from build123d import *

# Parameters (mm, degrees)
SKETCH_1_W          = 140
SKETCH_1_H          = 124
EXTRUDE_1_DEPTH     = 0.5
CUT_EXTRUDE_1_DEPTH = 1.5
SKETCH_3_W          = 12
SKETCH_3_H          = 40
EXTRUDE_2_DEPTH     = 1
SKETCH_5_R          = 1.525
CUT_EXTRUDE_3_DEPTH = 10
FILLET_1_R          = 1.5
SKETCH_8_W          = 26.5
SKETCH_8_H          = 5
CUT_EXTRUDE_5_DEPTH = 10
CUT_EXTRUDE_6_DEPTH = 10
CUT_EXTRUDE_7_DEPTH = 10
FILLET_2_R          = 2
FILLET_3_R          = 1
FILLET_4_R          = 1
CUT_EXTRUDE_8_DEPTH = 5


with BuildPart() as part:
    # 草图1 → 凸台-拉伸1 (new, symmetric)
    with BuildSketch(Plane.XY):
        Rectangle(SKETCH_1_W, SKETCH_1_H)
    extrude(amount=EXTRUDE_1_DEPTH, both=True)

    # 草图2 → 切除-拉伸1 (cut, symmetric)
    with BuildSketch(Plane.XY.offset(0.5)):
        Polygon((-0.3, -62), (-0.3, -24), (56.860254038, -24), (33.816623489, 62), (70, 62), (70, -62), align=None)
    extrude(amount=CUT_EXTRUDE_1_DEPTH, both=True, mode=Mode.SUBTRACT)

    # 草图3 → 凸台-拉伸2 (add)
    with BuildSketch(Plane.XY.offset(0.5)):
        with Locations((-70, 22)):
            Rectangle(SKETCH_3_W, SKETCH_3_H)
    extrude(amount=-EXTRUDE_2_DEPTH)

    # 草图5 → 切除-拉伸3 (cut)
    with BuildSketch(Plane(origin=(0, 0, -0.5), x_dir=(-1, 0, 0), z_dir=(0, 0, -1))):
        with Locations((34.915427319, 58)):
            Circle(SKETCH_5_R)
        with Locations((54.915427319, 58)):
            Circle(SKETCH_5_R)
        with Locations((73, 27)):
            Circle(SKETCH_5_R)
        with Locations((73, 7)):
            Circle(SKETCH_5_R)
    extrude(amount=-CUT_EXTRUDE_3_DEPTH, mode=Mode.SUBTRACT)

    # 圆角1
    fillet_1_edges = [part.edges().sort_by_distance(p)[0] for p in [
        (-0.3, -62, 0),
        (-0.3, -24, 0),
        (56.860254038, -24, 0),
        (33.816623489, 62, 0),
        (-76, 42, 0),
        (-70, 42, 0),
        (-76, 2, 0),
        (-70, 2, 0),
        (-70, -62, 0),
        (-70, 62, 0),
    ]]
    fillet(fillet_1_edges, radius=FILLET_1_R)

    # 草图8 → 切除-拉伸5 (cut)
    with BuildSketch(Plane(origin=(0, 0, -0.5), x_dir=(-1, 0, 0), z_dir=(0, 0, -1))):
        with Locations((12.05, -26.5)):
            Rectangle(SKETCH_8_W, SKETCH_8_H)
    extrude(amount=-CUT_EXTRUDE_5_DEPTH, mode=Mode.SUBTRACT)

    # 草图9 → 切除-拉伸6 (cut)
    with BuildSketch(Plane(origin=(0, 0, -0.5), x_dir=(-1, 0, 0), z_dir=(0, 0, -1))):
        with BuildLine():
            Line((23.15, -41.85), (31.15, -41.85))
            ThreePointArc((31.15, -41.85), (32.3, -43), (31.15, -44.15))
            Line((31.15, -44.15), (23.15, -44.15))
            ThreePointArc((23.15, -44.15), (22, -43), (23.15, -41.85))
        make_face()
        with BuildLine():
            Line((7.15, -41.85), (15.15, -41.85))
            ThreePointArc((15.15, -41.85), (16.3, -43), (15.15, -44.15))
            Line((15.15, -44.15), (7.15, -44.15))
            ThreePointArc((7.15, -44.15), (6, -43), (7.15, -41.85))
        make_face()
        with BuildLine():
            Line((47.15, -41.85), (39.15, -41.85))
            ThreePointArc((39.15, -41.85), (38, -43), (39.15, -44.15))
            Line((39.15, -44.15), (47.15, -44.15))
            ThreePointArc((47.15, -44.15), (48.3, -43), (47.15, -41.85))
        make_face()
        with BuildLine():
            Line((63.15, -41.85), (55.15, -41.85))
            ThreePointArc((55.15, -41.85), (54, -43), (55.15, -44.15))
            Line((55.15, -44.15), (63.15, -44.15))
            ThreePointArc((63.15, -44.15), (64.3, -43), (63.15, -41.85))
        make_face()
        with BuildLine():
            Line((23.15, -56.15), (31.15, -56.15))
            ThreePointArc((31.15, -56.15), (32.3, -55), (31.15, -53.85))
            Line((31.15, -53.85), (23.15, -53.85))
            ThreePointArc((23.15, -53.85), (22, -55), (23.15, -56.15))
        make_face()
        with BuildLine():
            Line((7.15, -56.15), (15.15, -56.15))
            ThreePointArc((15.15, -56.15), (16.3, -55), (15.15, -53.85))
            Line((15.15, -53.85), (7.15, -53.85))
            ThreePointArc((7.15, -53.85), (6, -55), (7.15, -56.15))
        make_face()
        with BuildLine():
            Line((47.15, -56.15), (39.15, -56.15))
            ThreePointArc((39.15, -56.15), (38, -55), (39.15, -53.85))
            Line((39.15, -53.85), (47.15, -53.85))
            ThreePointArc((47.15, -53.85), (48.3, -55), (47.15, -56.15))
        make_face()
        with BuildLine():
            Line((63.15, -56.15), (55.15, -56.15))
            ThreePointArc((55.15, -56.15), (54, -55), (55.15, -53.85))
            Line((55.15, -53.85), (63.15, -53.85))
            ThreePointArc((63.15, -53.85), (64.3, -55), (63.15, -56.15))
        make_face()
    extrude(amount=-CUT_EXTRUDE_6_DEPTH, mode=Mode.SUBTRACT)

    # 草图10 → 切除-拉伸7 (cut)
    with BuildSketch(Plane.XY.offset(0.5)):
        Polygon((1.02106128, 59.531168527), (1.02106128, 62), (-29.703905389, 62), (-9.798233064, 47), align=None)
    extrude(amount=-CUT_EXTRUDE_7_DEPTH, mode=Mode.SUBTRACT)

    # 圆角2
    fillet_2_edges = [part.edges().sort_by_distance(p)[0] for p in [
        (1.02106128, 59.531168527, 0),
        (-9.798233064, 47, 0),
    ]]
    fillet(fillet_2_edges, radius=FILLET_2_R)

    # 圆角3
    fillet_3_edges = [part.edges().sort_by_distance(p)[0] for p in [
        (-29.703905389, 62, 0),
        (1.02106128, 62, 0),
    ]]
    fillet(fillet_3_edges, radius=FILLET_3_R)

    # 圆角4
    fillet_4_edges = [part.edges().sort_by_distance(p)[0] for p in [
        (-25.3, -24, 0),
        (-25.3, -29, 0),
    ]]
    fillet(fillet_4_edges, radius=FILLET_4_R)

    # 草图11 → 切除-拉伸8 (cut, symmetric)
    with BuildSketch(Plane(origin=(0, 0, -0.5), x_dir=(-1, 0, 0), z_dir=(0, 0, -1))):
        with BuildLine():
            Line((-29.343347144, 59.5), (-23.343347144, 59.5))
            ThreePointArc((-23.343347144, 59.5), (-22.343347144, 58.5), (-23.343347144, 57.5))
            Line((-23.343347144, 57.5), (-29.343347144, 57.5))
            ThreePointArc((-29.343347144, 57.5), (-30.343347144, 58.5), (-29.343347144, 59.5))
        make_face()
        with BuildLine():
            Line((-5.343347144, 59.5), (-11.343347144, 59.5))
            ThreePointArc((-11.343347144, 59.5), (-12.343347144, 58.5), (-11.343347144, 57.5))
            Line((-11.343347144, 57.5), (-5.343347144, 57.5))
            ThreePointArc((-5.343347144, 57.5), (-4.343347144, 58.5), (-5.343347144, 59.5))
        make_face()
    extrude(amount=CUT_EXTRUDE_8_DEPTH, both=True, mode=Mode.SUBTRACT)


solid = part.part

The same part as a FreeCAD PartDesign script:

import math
import FreeCAD as App
import Part
import Sketcher
from FreeCAD import Vector
Q = App.Units.Quantity


def edges_at(feature, points):
    """Names of the edges that pass closest to the given points."""
    edges = feature.Shape.Edges
    near = lambda p: min(range(len(edges)), key=lambda i: edges[i].distToShape(Part.Vertex(*p))[0])
    return sorted({f"Edge{near(p) + 1}" for p in points})

doc = App.newDocument("Part")
body = doc.addObject("PartDesign::Body", "Body")

# Sketch on XY plane
sketch1 = body.newObject("Sketcher::SketchObject", "Sketch")
sketch1.AttachmentSupport = (doc.getObject("XY_Plane"), [""])
sketch1.MapMode = "FlatFace"
sketch1.addGeometry([
    Part.LineSegment(Vector(-70, 62, 0), Vector(-70, -62, 0)),
    Part.LineSegment(Vector(-70, -62, 0), Vector(70, -62, 0)),
    Part.LineSegment(Vector(70, -62, 0), Vector(70, 62, 0)),
    Part.LineSegment(Vector(70, 62, 0), Vector(-70, 62, 0)),
], False)
sketch1.addConstraint([
    Sketcher.Constraint("Coincident", 0, 2, 1, 1),
    Sketcher.Constraint("Coincident", 1, 2, 2, 1),
    Sketcher.Constraint("Coincident", 2, 2, 3, 1),
    Sketcher.Constraint("Coincident", 3, 2, 0, 1),
    Sketcher.Constraint("Vertical", 0),
    Sketcher.Constraint("Horizontal", 1),
    Sketcher.Constraint("Vertical", 2),
    Sketcher.Constraint("Horizontal", 3),
    Sketcher.Constraint("Symmetric", 0, 2, 2, 2, -1, 1),
    Sketcher.Constraint("DistanceX", 1, 1, 1, 2, Q("140 mm")),
    Sketcher.Constraint("DistanceY", 0, 2, 0, 1, Q("124 mm")),
])
pad1 = body.newObject("PartDesign::Pad", "Pad")
pad1.Profile = sketch1
pad1.Length = 1
pad1.Midplane = True

# Sketch on XY plane
sketch2 = body.newObject("Sketcher::SketchObject", "Sketch001")
sketch2.AttachmentSupport = (doc.getObject("XY_Plane"), [""])
sketch2.MapMode = "FlatFace"
sketch2.AttachmentOffset = App.Placement(Vector(0, 0, 0.5), App.Rotation())
sketch2.addGeometry([
    Part.LineSegment(Vector(-0.3, -24, 0), Vector(-0.3, -62, 0)),  # 0
    Part.LineSegment(Vector(-0.3, -62, 0), Vector(70, -62, 0)),  # 1
    Part.LineSegment(Vector(70, -62, 0), Vector(70, 62, 0)),  # 2
    Part.LineSegment(Vector(70, 62, 0), Vector(33.816623, 62, 0)),  # 3
    Part.LineSegment(Vector(33.816623, 62, 0), Vector(56.860254, -24, 0)),  # 4
    Part.LineSegment(Vector(56.860254, -24, 0), Vector(-0.3, -24, 0)),  # 5
], False)
sketch2.addConstraint([
    Sketcher.Constraint("Coincident", 0, 2, 1, 1),
    Sketcher.Constraint("Coincident", 1, 2, 2, 1),
    Sketcher.Constraint("Coincident", 2, 2, 3, 1),
    Sketcher.Constraint("Coincident", 3, 2, 4, 1),
    Sketcher.Constraint("Coincident", 4, 2, 5, 1),
    Sketcher.Constraint("Coincident", 5, 2, 0, 1),
    Sketcher.Constraint("Vertical", 0),
    Sketcher.Constraint("Horizontal", 1),
    Sketcher.Constraint("Vertical", 2),
    Sketcher.Constraint("Horizontal", 3),
    Sketcher.Constraint("Horizontal", 5),
    Sketcher.Constraint("DistanceY", 0, 2, 0, 1, Q("38 mm")),
    Sketcher.Constraint("DistanceY", 2, 1, 2, 2, Q("124 mm")),
    Sketcher.Constraint("Angle", 4, Q("-75 deg")),
    Sketcher.Constraint("DistanceX", 1, 1, 1, 2, Q("70.3 mm")),
    Sketcher.Constraint("DistanceY", 0, 2, -1, 1, Q("62 mm")),
    Sketcher.Constraint("DistanceX", -1, 1, 1, 2, Q("70 mm")),
    Sketcher.Constraint("DistanceX", 3, 2, 3, 1, Q("36.183377 mm")),
])
pocket1 = body.newObject("PartDesign::Pocket", "Pocket")
pocket1.Profile = sketch2
pocket1.Length = 3
pocket1.Midplane = True

# Sketch on XY plane
sketch3 = body.newObject("Sketcher::SketchObject", "Sketch002")
sketch3.AttachmentSupport = (doc.getObject("XY_Plane"), [""])
sketch3.MapMode = "FlatFace"
sketch3.AttachmentOffset = App.Placement(Vector(0, 0, 0.5), App.Rotation())
sketch3.addGeometry([
    Part.LineSegment(Vector(-76, 42, 0), Vector(-76, 2, 0)),
    Part.LineSegment(Vector(-76, 2, 0), Vector(-64, 2, 0)),
    Part.LineSegment(Vector(-64, 2, 0), Vector(-64, 42, 0)),
    Part.LineSegment(Vector(-64, 42, 0), Vector(-76, 42, 0)),
], False)
sketch3.addConstraint([
    Sketcher.Constraint("Coincident", 0, 2, 1, 1),
    Sketcher.Constraint("Coincident", 1, 2, 2, 1),
    Sketcher.Constraint("Coincident", 2, 2, 3, 1),
    Sketcher.Constraint("Coincident", 3, 2, 0, 1),
    Sketcher.Constraint("Vertical", 0),
    Sketcher.Constraint("Horizontal", 1),
    Sketcher.Constraint("Vertical", 2),
    Sketcher.Constraint("Horizontal", 3),
    Sketcher.Constraint("DistanceX", 1, 1, 1, 2, Q("12 mm")),
    Sketcher.Constraint("DistanceY", 0, 2, 0, 1, Q("40 mm")),
    Sketcher.Constraint("DistanceX", 0, 2, -1, 1, Q("76 mm")),
    Sketcher.Constraint("DistanceY", -1, 1, 0, 2, Q("2 mm")),
])
pad2 = body.newObject("PartDesign::Pad", "Pad001")
pad2.Profile = sketch3
pad2.Length = 1
pad2.Reversed = True

# Sketch on XY plane
sketch4 = body.newObject("Sketcher::SketchObject", "Sketch003")
sketch4.AttachmentSupport = (doc.getObject("XY_Plane"), [""])
sketch4.MapMode = "FlatFace"
sketch4.AttachmentOffset = App.Placement(Vector(0, 0, -0.5), App.Rotation())
sketch4.addGeometry([
    Part.Circle(Vector(-34.915427, 58, 0), Vector(0, 0, 1), 1.525),
    Part.Circle(Vector(-54.915427, 58, 0), Vector(0, 0, 1), 1.525),
    Part.Circle(Vector(-73, 27, 0), Vector(0, 0, 1), 1.525),
    Part.Circle(Vector(-73, 7, 0), Vector(0, 0, 1), 1.525),
], False)
sketch4.addConstraint([
    Sketcher.Constraint("Equal", 0, 1),
    Sketcher.Constraint("Equal", 1, 2),
    Sketcher.Constraint("Equal", 2, 3),
    Sketcher.Constraint("Horizontal", 0, 3, 1, 3),
    Sketcher.Constraint("Vertical", 2, 3, 3, 3),
    Sketcher.Constraint("Diameter", 0, Q("3.05 mm")),
    Sketcher.Constraint("DistanceY", -1, 1, 0, 3, Q("58 mm")),
    Sketcher.Constraint("DistanceX", 2, 3, -1, 1, Q("73 mm")),
    Sketcher.Constraint("DistanceY", -1, 1, 2, 3, Q("27 mm")),
    Sketcher.Constraint("DistanceY", -1, 1, 3, 3, Q("7 mm")),
    Sketcher.Constraint("DistanceX", 1, 3, 0, 3, Q("20 mm")),
    Sketcher.Constraint("DistanceX", 0, 3, -1, 1, Q("34.915427 mm")),
])
pocket2 = body.newObject("PartDesign::Pocket", "Pocket001")
pocket2.Profile = sketch4
pocket2.Length = 10
pocket2.Reversed = True
doc.recompute()

fillet = body.newObject("PartDesign::Fillet", "Fillet")
fillet.Base = (pocket2, edges_at(pocket2, [
    (-0.3, -62, 0),
    (-0.3, -24, 0),
    (56.86, -24, 0),
    (33.817, 62, 0),
    (-76, 42, 0),
    (-70, 42, 0),
    (-76, 2, 0),
    (-70, 2, 0),
    (-70, -62, 0),
    (-70, 62, 0),
]))
fillet.Radius = 1.5

# Sketch on XY plane
sketch5 = body.newObject("Sketcher::SketchObject", "Sketch004")
sketch5.AttachmentSupport = (doc.getObject("XY_Plane"), [""])
sketch5.MapMode = "FlatFace"
sketch5.AttachmentOffset = App.Placement(Vector(0, 0, -0.5), App.Rotation())
sketch5.addGeometry([
    Part.LineSegment(Vector(1.2, -24, 0), Vector(1.2, -29, 0)),
    Part.LineSegment(Vector(1.2, -29, 0), Vector(-25.3, -29, 0)),
    Part.LineSegment(Vector(-25.3, -29, 0), Vector(-25.3, -24, 0)),
    Part.LineSegment(Vector(-25.3, -24, 0), Vector(1.2, -24, 0)),
], False)
sketch5.addConstraint([
    Sketcher.Constraint("Coincident", 0, 2, 1, 1),
    Sketcher.Constraint("Coincident", 1, 2, 2, 1),
    Sketcher.Constraint("Coincident", 2, 2, 3, 1),
    Sketcher.Constraint("Coincident", 3, 2, 0, 1),
    Sketcher.Constraint("Vertical", 0),
    Sketcher.Constraint("Horizontal", 1),
    Sketcher.Constraint("Vertical", 2),
    Sketcher.Constraint("Horizontal", 3),
    Sketcher.Constraint("DistanceY", 0, 2, 0, 1, Q("5 mm")),
    Sketcher.Constraint("DistanceX", 1, 2, 1, 1, Q("26.5 mm")),
    Sketcher.Constraint("DistanceY", 0, 2, -1, 1, Q("29 mm")),
    Sketcher.Constraint("DistanceX", -1, 1, 0, 2, Q("1.2 mm")),
])
pocket3 = body.newObject("PartDesign::Pocket", "Pocket002")
pocket3.Profile = sketch5
pocket3.Length = 10
pocket3.Reversed = True

# Sketch on XY plane
sketch6 = body.newObject("Sketcher::SketchObject", "Sketch005")
sketch6.AttachmentSupport = (doc.getObject("XY_Plane"), [""])
sketch6.MapMode = "FlatFace"
sketch6.AttachmentOffset = App.Placement(Vector(0, 0, -0.5), App.Rotation())
sketch6.addGeometry([
    Part.LineSegment(Vector(-31.15, -41.85, 0), Vector(-23.15, -41.85, 0)),  # 0
    Part.ArcOfCircle(Part.Circle(Vector(-23.15, -43, 0), Vector(0, 0, 1), 1.15), math.radians(-90), math.radians(90)),  # 1
    Part.LineSegment(Vector(-23.15, -44.15, 0), Vector(-31.15, -44.15, 0)),  # 2
    Part.ArcOfCircle(Part.Circle(Vector(-31.15, -43, 0), Vector(0, 0, 1), 1.15), math.radians(90), math.radians(270)),  # 3
    Part.LineSegment(Vector(-15.15, -41.85, 0), Vector(-7.15, -41.85, 0)),  # 4
    Part.ArcOfCircle(Part.Circle(Vector(-7.15, -43, 0), Vector(0, 0, 1), 1.15), math.radians(-90), math.radians(90)),  # 5
    Part.LineSegment(Vector(-7.15, -44.15, 0), Vector(-15.15, -44.15, 0)),  # 6
    Part.ArcOfCircle(Part.Circle(Vector(-15.15, -43, 0), Vector(0, 0, 1), 1.15), math.radians(90), math.radians(270)),  # 7
    Part.LineSegment(Vector(-47.15, -41.85, 0), Vector(-39.15, -41.85, 0)),  # 8
    Part.ArcOfCircle(Part.Circle(Vector(-39.15, -43, 0), Vector(0, 0, 1), 1.15), math.radians(-90), math.radians(90)),  # 9
    Part.LineSegment(Vector(-39.15, -44.15, 0), Vector(-47.15, -44.15, 0)),  # 10
    Part.ArcOfCircle(Part.Circle(Vector(-47.15, -43, 0), Vector(0, 0, 1), 1.15), math.radians(90), math.radians(270)),  # 11
    Part.LineSegment(Vector(-63.15, -41.85, 0), Vector(-55.15, -41.85, 0)),  # 12
    Part.ArcOfCircle(Part.Circle(Vector(-55.15, -43, 0), Vector(0, 0, 1), 1.15), math.radians(-90), math.radians(90)),  # 13
    Part.LineSegment(Vector(-55.15, -44.15, 0), Vector(-63.15, -44.15, 0)),  # 14
    Part.ArcOfCircle(Part.Circle(Vector(-63.15, -43, 0), Vector(0, 0, 1), 1.15), math.radians(90), math.radians(270)),  # 15
    Part.LineSegment(Vector(-23.15, -56.15, 0), Vector(-31.15, -56.15, 0)),  # 16
    Part.ArcOfCircle(Part.Circle(Vector(-31.15, -55, 0), Vector(0, 0, 1), 1.15), math.radians(90), math.radians(270)),  # 17
    Part.LineSegment(Vector(-31.15, -53.85, 0), Vector(-23.15, -53.85, 0)),  # 18
    Part.ArcOfCircle(Part.Circle(Vector(-23.15, -55, 0), Vector(0, 0, 1), 1.15), math.radians(-90), math.radians(90)),  # 19
    Part.LineSegment(Vector(-7.15, -56.15, 0), Vector(-15.15, -56.15, 0)),  # 20
    Part.ArcOfCircle(Part.Circle(Vector(-15.15, -55, 0), Vector(0, 0, 1), 1.15), math.radians(90), math.radians(270)),  # 21
    Part.LineSegment(Vector(-15.15, -53.85, 0), Vector(-7.15, -53.85, 0)),  # 22
    Part.ArcOfCircle(Part.Circle(Vector(-7.15, -55, 0), Vector(0, 0, 1), 1.15), math.radians(-90), math.radians(90)),  # 23
    Part.LineSegment(Vector(-39.15, -56.15, 0), Vector(-47.15, -56.15, 0)),  # 24
    Part.ArcOfCircle(Part.Circle(Vector(-47.15, -55, 0), Vector(0, 0, 1), 1.15), math.radians(90), math.radians(270)),  # 25
    Part.LineSegment(Vector(-47.15, -53.85, 0), Vector(-39.15, -53.85, 0)),  # 26
    Part.ArcOfCircle(Part.Circle(Vector(-39.15, -55, 0), Vector(0, 0, 1), 1.15), math.radians(-90), math.radians(90)),  # 27
    Part.LineSegment(Vector(-55.15, -56.15, 0), Vector(-63.15, -56.15, 0)),  # 28
    Part.ArcOfCircle(Part.Circle(Vector(-63.15, -55, 0), Vector(0, 0, 1), 1.15), math.radians(90), math.radians(270)),  # 29
    Part.LineSegment(Vector(-63.15, -53.85, 0), Vector(-55.15, -53.85, 0)),  # 30
    Part.ArcOfCircle(Part.Circle(Vector(-55.15, -55, 0), Vector(0, 0, 1), 1.15), math.radians(-90), math.radians(90)),  # 31
], False)
sketch6.addConstraint([
    Sketcher.Constraint("Tangent", 0, 2, 1, 2),
    Sketcher.Constraint("Tangent", 1, 1, 2, 1),
    Sketcher.Constraint("Tangent", 2, 2, 3, 2),
    Sketcher.Constraint("Tangent", 3, 1, 0, 1),
    Sketcher.Constraint("Tangent", 4, 2, 5, 2),
    Sketcher.Constraint("Tangent", 5, 1, 6, 1),
    Sketcher.Constraint("Tangent", 6, 2, 7, 2),
    Sketcher.Constraint("Tangent", 7, 1, 4, 1),
    Sketcher.Constraint("Tangent", 8, 2, 9, 2),
    Sketcher.Constraint("Tangent", 9, 1, 10, 1),
    Sketcher.Constraint("Tangent", 10, 2, 11, 2),
    Sketcher.Constraint("Tangent", 11, 1, 8, 1),
    Sketcher.Constraint("Tangent", 12, 2, 13, 2),
    Sketcher.Constraint("Tangent", 13, 1, 14, 1),
    Sketcher.Constraint("Tangent", 14, 2, 15, 2),
    Sketcher.Constraint("Tangent", 15, 1, 12, 1),
    Sketcher.Constraint("Tangent", 16, 2, 17, 2),
    Sketcher.Constraint("Tangent", 17, 1, 18, 1),
    Sketcher.Constraint("Tangent", 18, 2, 19, 2),
    Sketcher.Constraint("Tangent", 19, 1, 16, 1),
    Sketcher.Constraint("Tangent", 20, 2, 21, 2),
    Sketcher.Constraint("Tangent", 21, 1, 22, 1),
    Sketcher.Constraint("Tangent", 22, 2, 23, 2),
    Sketcher.Constraint("Tangent", 23, 1, 20, 1),
    Sketcher.Constraint("Tangent", 24, 2, 25, 2),
    Sketcher.Constraint("Tangent", 25, 1, 26, 1),
    Sketcher.Constraint("Tangent", 26, 2, 27, 2),
    Sketcher.Constraint("Tangent", 27, 1, 24, 1),
    Sketcher.Constraint("Tangent", 28, 2, 29, 2),
    Sketcher.Constraint("Tangent", 29, 1, 30, 1),
    Sketcher.Constraint("Tangent", 30, 2, 31, 2),
    Sketcher.Constraint("Tangent", 31, 1, 28, 1),
    Sketcher.Constraint("Horizontal", 0),
    Sketcher.Constraint("Horizontal", 2),
    Sketcher.Constraint("Horizontal", 4),
    Sketcher.Constraint("Horizontal", 6),
    Sketcher.Constraint("Horizontal", 8),
    Sketcher.Constraint("Horizontal", 10),
    Sketcher.Constraint("Horizontal", 12),
    Sketcher.Constraint("Horizontal", 14),
    Sketcher.Constraint("Horizontal", 16),
    Sketcher.Constraint("Horizontal", 18),
    Sketcher.Constraint("Horizontal", 20),
    Sketcher.Constraint("Horizontal", 22),
    Sketcher.Constraint("Horizontal", 24),
    Sketcher.Constraint("Horizontal", 26),
    Sketcher.Constraint("Horizontal", 28),
    Sketcher.Constraint("Horizontal", 30),
    Sketcher.Constraint("Equal", 3, 5),
    Sketcher.Constraint("Equal", 7, 9),
    Sketcher.Constraint("Equal", 11, 13),
    Sketcher.Constraint("Equal", 15, 17),
    Sketcher.Constraint("Equal", 19, 21),
    Sketcher.Constraint("Equal", 23, 25),
    Sketcher.Constraint("Equal", 27, 29),
    Sketcher.Constraint("Horizontal", 3, 3, 5, 3),
    Sketcher.Constraint("Horizontal", 7, 3, 9, 3),
    Sketcher.Constraint("Horizontal", 11, 3, 13, 3),
    Sketcher.Constraint("Horizontal", 19, 3, 21, 3),
    Sketcher.Constraint("Horizontal", 23, 3, 25, 3),
    Sketcher.Constraint("Horizontal", 27, 3, 29, 3),
    Sketcher.Constraint("Vertical", 3, 3, 17, 3),
    Sketcher.Constraint("Vertical", 1, 3, 19, 3),
    Sketcher.Constraint("Vertical", 7, 3, 21, 3),
    Sketcher.Constraint("Vertical", 5, 3, 23, 3),
    Sketcher.Constraint("Vertical", 11, 3, 25, 3),
    Sketcher.Constraint("Vertical", 9, 3, 27, 3),
    Sketcher.Constraint("Vertical", 15, 3, 29, 3),
    Sketcher.Constraint("Vertical", 13, 3, 31, 3),
    Sketcher.Constraint("Equal", 2, 4),
    Sketcher.Constraint("Equal", 6, 8),
    Sketcher.Constraint("Equal", 10, 12),
    Sketcher.Constraint("DistanceX", 0, 1, 0, 2, Q("8 mm")),
    Sketcher.Constraint("Radius", 1, Q("1.15 mm")),
    Sketcher.Constraint("DistanceY", 1, 3, -1, 1, Q("43 mm")),
    Sketcher.Constraint("DistanceY", 17, 3, -1, 1, Q("55 mm")),
    Sketcher.Constraint("DistanceX", 1, 3, 5, 3, Q("16 mm")),
    Sketcher.Constraint("DistanceX", 9, 3, 3, 3, Q("8 mm")),
    Sketcher.Constraint("DistanceX", 13, 3, 11, 3, Q("8 mm")),
    Sketcher.Constraint("DistanceX", 1, 3, -1, 1, Q("23.15 mm")),
])
pocket4 = body.newObject("PartDesign::Pocket", "Pocket003")
pocket4.Profile = sketch6
pocket4.Length = 10
pocket4.Reversed = True

# Sketch on XY plane
sketch7 = body.newObject("Sketcher::SketchObject", "Sketch006")
sketch7.AttachmentSupport = (doc.getObject("XY_Plane"), [""])
sketch7.MapMode = "FlatFace"
sketch7.AttachmentOffset = App.Placement(Vector(0, 0, 0.5), App.Rotation())
sketch7.addGeometry([
    Part.LineSegment(Vector(1.021061, 59.531169, 0), Vector(1.021061, 62, 0)),
    Part.LineSegment(Vector(1.021061, 62, 0), Vector(-29.703905, 62, 0)),
    Part.LineSegment(Vector(-29.703905, 62, 0), Vector(-9.798233, 47, 0)),
    Part.LineSegment(Vector(-9.798233, 47, 0), Vector(1.021061, 59.531169, 0)),
], False)
sketch7.addConstraint([
    Sketcher.Constraint("Coincident", 0, 2, 1, 1),
    Sketcher.Constraint("Coincident", 1, 2, 2, 1),
    Sketcher.Constraint("Coincident", 2, 2, 3, 1),
    Sketcher.Constraint("Coincident", 3, 2, 0, 1),
    Sketcher.Constraint("Vertical", 0),
    Sketcher.Constraint("Horizontal", 1),
    Sketcher.Constraint("Angle", 2, Q("-37 deg")),
    Sketcher.Constraint("DistanceY", -1, 1, 0, 2, Q("62 mm")),
    Sketcher.Constraint("DistanceY", -1, 1, 2, 2, Q("47 mm")),
    Sketcher.Constraint("DistanceY", 0, 1, 0, 2, Q("2.468831 mm")),
    Sketcher.Constraint("DistanceX", 1, 2, 1, 1, Q("30.724967 mm")),
    Sketcher.Constraint("DistanceX", -1, 1, 0, 2, Q("1.021061 mm")),
])
pocket5 = body.newObject("PartDesign::Pocket", "Pocket004")
pocket5.Profile = sketch7
pocket5.Length = 10
doc.recompute()

fillet2 = body.newObject("PartDesign::Fillet", "Fillet001")
fillet2.Base = (pocket5, edges_at(pocket5, [(1.021, 59.531, 0), (-9.798, 47, 0)]))
fillet2.Radius = 2
doc.recompute()

fillet3 = body.newObject("PartDesign::Fillet", "Fillet002")
fillet3.Base = (fillet2, edges_at(fillet2, [(-29.704, 62, 0), (1.021, 62, 0)]))
fillet3.Radius = 1
doc.recompute()

fillet4 = body.newObject("PartDesign::Fillet", "Fillet003")
fillet4.Base = (fillet3, edges_at(fillet3, [(-25.3, -24, 0), (-25.3, -29, 0)]))
fillet4.Radius = 1

# Sketch on XY plane
sketch8 = body.newObject("Sketcher::SketchObject", "Sketch007")
sketch8.AttachmentSupport = (doc.getObject("XY_Plane"), [""])
sketch8.MapMode = "FlatFace"
sketch8.AttachmentOffset = App.Placement(Vector(0, 0, -0.5), App.Rotation())
sketch8.addGeometry([
    Part.LineSegment(Vector(23.343347, 59.5, 0), Vector(29.343347, 59.5, 0)),  # 0
    Part.ArcOfCircle(Part.Circle(Vector(29.343347, 58.5, 0), Vector(0, 0, 1), 1), math.radians(-90), math.radians(90)),  # 1
    Part.LineSegment(Vector(29.343347, 57.5, 0), Vector(23.343347, 57.5, 0)),  # 2
    Part.ArcOfCircle(Part.Circle(Vector(23.343347, 58.5, 0), Vector(0, 0, 1), 1), math.radians(90), math.radians(270)),  # 3
    Part.LineSegment(Vector(5.343347, 59.5, 0), Vector(11.343347, 59.5, 0)),  # 4
    Part.ArcOfCircle(Part.Circle(Vector(11.343347, 58.5, 0), Vector(0, 0, 1), 1), math.radians(-90), math.radians(90)),  # 5
    Part.LineSegment(Vector(11.343347, 57.5, 0), Vector(5.343347, 57.5, 0)),  # 6
    Part.ArcOfCircle(Part.Circle(Vector(5.343347, 58.5, 0), Vector(0, 0, 1), 1), math.radians(90), math.radians(270)),  # 7
], False)
sketch8.addConstraint([
    Sketcher.Constraint("Tangent", 0, 2, 1, 2),
    Sketcher.Constraint("Tangent", 1, 1, 2, 1),
    Sketcher.Constraint("Tangent", 2, 2, 3, 2),
    Sketcher.Constraint("Tangent", 3, 1, 0, 1),
    Sketcher.Constraint("Tangent", 4, 2, 5, 2),
    Sketcher.Constraint("Tangent", 5, 1, 6, 1),
    Sketcher.Constraint("Tangent", 6, 2, 7, 2),
    Sketcher.Constraint("Tangent", 7, 1, 4, 1),
    Sketcher.Constraint("Horizontal", 0),
    Sketcher.Constraint("Horizontal", 2),
    Sketcher.Constraint("Horizontal", 4),
    Sketcher.Constraint("Horizontal", 6),
    Sketcher.Constraint("Equal", 3, 5),
    Sketcher.Constraint("Horizontal", 3, 3, 5, 3),
    Sketcher.Constraint("Equal", 2, 4),
    Sketcher.Constraint("Radius", 1, Q("1 mm")),
    Sketcher.Constraint("DistanceX", 0, 1, 0, 2, Q("6 mm")),
    Sketcher.Constraint("DistanceX", 5, 3, 3, 3, Q("12 mm")),
    Sketcher.Constraint("DistanceY", -1, 1, 1, 3, Q("58.5 mm")),
    Sketcher.Constraint("DistanceX", -1, 1, 1, 3, Q("29.343347 mm")),
])
pocket6 = body.newObject("PartDesign::Pocket", "Pocket005")
pocket6.Profile = sketch8
pocket6.Length = 10
pocket6.Midplane = True

doc.recompute()
